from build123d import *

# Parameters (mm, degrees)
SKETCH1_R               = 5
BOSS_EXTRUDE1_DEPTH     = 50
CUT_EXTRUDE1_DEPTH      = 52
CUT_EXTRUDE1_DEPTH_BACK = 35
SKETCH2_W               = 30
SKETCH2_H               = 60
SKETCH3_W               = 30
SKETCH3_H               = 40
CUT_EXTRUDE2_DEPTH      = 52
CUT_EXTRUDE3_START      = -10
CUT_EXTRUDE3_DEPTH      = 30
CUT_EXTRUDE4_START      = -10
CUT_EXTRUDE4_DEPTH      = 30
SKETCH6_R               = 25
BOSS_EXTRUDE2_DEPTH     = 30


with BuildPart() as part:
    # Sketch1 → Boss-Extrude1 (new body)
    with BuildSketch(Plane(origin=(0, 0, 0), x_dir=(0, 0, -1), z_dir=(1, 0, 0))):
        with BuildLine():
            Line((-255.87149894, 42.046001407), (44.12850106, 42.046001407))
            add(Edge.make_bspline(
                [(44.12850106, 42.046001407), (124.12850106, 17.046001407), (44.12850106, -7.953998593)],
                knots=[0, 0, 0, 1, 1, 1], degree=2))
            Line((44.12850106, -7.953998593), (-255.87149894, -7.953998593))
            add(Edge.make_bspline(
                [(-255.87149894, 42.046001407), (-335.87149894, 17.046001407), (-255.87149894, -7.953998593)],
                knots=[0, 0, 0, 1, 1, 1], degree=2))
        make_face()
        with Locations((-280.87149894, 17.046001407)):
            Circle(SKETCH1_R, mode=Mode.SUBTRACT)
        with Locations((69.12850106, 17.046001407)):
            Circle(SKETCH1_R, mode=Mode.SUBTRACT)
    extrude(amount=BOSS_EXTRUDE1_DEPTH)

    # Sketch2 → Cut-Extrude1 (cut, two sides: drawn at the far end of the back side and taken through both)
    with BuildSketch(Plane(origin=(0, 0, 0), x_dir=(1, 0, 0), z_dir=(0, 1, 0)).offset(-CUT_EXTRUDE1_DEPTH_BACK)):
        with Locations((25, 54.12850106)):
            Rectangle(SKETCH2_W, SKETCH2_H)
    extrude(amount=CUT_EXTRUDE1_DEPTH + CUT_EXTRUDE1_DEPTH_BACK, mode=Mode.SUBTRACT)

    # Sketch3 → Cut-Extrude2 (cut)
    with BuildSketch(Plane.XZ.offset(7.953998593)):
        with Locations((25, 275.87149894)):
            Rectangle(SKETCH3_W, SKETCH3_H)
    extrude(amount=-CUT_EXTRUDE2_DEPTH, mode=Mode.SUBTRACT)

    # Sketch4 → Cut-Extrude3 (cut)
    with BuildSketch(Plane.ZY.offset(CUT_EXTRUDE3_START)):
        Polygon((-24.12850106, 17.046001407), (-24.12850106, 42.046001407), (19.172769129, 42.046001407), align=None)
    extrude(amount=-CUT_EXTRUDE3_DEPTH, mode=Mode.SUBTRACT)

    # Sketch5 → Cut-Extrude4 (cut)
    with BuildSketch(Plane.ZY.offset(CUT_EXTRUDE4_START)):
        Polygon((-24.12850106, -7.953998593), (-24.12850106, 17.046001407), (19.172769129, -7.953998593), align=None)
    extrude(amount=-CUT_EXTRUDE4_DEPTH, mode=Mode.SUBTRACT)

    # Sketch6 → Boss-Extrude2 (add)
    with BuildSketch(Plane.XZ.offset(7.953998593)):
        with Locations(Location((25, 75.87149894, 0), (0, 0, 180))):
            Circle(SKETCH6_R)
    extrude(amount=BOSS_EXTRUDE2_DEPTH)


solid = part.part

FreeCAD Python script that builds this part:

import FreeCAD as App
import Part
import Sketcher
Q = App.Units.Quantity


def add_polygon(sketch, points):
    """Adds a closed chain of lines whose ends are joined by coincident constraints."""
    first, n = sketch.GeometryCount, len(points)
    for a, b in zip(points, points[1:] + points[:1]):
        sketch.addGeometry(Part.LineSegment(App.Vector(*a, 0), App.Vector(*b, 0)), False)
    for i in range(n):
        sketch.addConstraint(Sketcher.Constraint("Coincident", first + i, 2, first + (i + 1) % n, 1))

doc = App.newDocument("Part")
body = doc.addObject("PartDesign::Body", "Body")

# Sketch on YZ plane
sketch1 = body.newObject("Sketcher::SketchObject", "Sketch")
sketch1.AttachmentSupport = (doc.getObject("YZ_Plane"), [""])
sketch1.MapMode = "FlatFace"
sketch1.addGeometry([
    Part.LineSegment(App.Vector(42.046001, -44.128501, 0), App.Vector(42.046001, 255.871499, 0)),  # 0
    Part.BSplineCurve([App.Vector(42.046001, 255.871499, 0), App.Vector(17.046001, 335.871499, 0), App.Vector(-7.953999, 255.871499, 0)], [3, 3], [0, 1], False, 2, [1, 1, 1], False),  # 1
    Part.LineSegment(App.Vector(-7.953999, 255.871499, 0), App.Vector(-7.953999, -44.128501, 0)),  # 2
    Part.BSplineCurve([App.Vector(42.046001, -44.128501, 0), App.Vector(17.046001, -124.128501, 0), App.Vector(-7.953999, -44.128501, 0)], [3, 3], [0, 1], False, 2, [1, 1, 1], False),  # 3
    Part.Circle(App.Vector(17.046001, -69.128501, 0), App.Vector(0, 0, 1), 5),  # 4
    Part.Circle(App.Vector(17.046001, 280.871499, 0), App.Vector(0, 0, 1), 5),  # 5
], False)
sketch1.addConstraint([
    Sketcher.Constraint("Block", 1),
    Sketcher.Constraint("Block", 3),
    Sketcher.Constraint("Coincident", 0, 2, 1, 1),
    Sketcher.Constraint("Coincident", 1, 2, 2, 1),
    Sketcher.Constraint("Coincident", 2, 2, 3, 2),
    Sketcher.Constraint("Coincident", 3, 1, 0, 1),
    Sketcher.Constraint("Equal", 4, 5),
    Sketcher.Constraint("Vertical", 4, 3, 5, 3),
    Sketcher.Constraint("Diameter", 4, Q("10 mm")),
    Sketcher.Constraint("DistanceY", 4, 3, 5, 3, Q("350 mm")),
    Sketcher.Constraint("DistanceX", 5, 3, 0, 2, Q("25 mm")),
    Sketcher.Constraint("DistanceY", 0, 2, 5, 3, Q("25 mm")),
])
pad1 = body.newObject("PartDesign::Pad", "Pad")
pad1.Profile = sketch1
pad1.Length = 50

# Sketch on XZ plane
sketch2 = body.newObject("Sketcher::SketchObject", "Sketch001")
sketch2.AttachmentSupport = (doc.getObject("XZ_Plane"), [""])
sketch2.MapMode = "FlatFace"
add_polygon(sketch2, [(10, -84), (10, -24), (40, -24), (40, -84)])  # lines 0-3
sketch2.addConstraint([
    Sketcher.Constraint("Vertical", 0),
    Sketcher.Constraint("Horizontal", 1),
    Sketcher.Constraint("Vertical", 2),
    Sketcher.Constraint("Horizontal", 3),
    Sketcher.Constraint("DistanceX", 1, 1, 1, 2, Q("30 mm")),
    Sketcher.Constraint("DistanceY", 0, 1, 0, 2, Q("60 mm")),
    Sketcher.Constraint("DistanceX", -1, 1, 0, 2, Q("10 mm")),
    Sketcher.Constraint("DistanceY", 0, 2, -1, 1, Q("24.128501 mm")),
])
pocket1 = body.newObject("PartDesign::Pocket", "Pocket")
pocket1.Profile = sketch2
pocket1.Type = "ThroughAll"
pocket1.Midplane = True

# Sketch on XZ plane
sketch3 = body.newObject("Sketcher::SketchObject", "Sketch002")
sketch3.AttachmentSupport = (doc.getObject("XZ_Plane"), [""])
sketch3.MapMode = "FlatFace"
sketch3.AttachmentOffset = App.Placement(App.Vector(0, 0, 7.953999), App.Rotation())
add_polygon(sketch3, [(10, 296), (10, 256), (40, 256), (40, 296)])  # lines 0-3
sketch3.addConstraint([
    Sketcher.Constraint("Vertical", 0),
    Sketcher.Constraint("Horizontal", 1),
    Sketcher.Constraint("Vertical", 2),
    Sketcher.Constraint("Horizontal", 3),
    Sketcher.Constraint("DistanceX", 1, 1, 1, 2, Q("30 mm")),
    Sketcher.Constraint("DistanceY", 0, 2, 0, 1, Q("40 mm")),
    Sketcher.Constraint("DistanceX", -1, 1, 0, 2, Q("10 mm")),
    Sketcher.Constraint("DistanceY", -1, 1, 0, 2, Q("255.871499 mm")),
])
pocket2 = body.newObject("PartDesign::Pocket", "Pocket001")
pocket2.Profile = sketch3
pocket2.Length = 52

# Sketch on YZ plane
sketch4 = body.newObject("Sketcher::SketchObject", "Sketch003")
sketch4.AttachmentSupport = (doc.getObject("YZ_Plane"), [""])
sketch4.MapMode = "FlatFace"
sketch4.AttachmentOffset = App.Placement(App.Vector(0, 0, 10), App.Rotation())
add_polygon(sketch4, [(42, -24), (17, -24), (42, 19)])  # lines 0-2
sketch4.addConstraint([
    Sketcher.Constraint("Horizontal", 0),
    Sketcher.Constraint("Vertical", 2),
    Sketcher.Constraint("DistanceX", 0, 2, 0, 1, Q("25 mm")),
    Sketcher.Constraint("Angle", 1, Q("60 deg")),
    Sketcher.Constraint("DistanceX", -1, 1, 0, 2, Q("17.046001 mm")),
    Sketcher.Constraint("DistanceY", 0, 2, -1, 1, Q("24.128501 mm")),
])
pocket3 = body.newObject("PartDesign::Pocket", "Pocket002")
pocket3.Profile = sketch4
pocket3.Length = 30
pocket3.Reversed = True

# Sketch on YZ plane
sketch5 = body.newObject("Sketcher::SketchObject", "Sketch004")
sketch5.AttachmentSupport = (doc.getObject("YZ_Plane"), [""])
sketch5.MapMode = "FlatFace"
sketch5.AttachmentOffset = App.Placement(App.Vector(0, 0, 10), App.Rotation())
add_polygon(sketch5, [(17, -24), (-8, -24), (-8, 19)])  # lines 0-2
sketch5.addConstraint([
    Sketcher.Constraint("Horizontal", 0),
    Sketcher.Constraint("Vertical", 1),
    Sketcher.Constraint("DistanceX", 0, 2, 0, 1, Q("25 mm")),
    Sketcher.Constraint("Angle", 2, Q("-60 deg")),
    Sketcher.Constraint("DistanceX", 0, 2, -1, 1, Q("7.953999 mm")),
    Sketcher.Constraint("DistanceY", 0, 2, -1, 1, Q("24.128501 mm")),
])
pocket4 = body.newObject("PartDesign::Pocket", "Pocket003")
pocket4.Profile = sketch5
pocket4.Length = 30
pocket4.Reversed = True

# Sketch on XZ plane
sketch6 = body.newObject("Sketcher::SketchObject", "Sketch005")
sketch6.AttachmentSupport = (doc.getObject("XZ_Plane"), [""])
sketch6.MapMode = "FlatFace"
sketch6.AttachmentOffset = App.Placement(App.Vector(0, 0, 7.953999), App.Rotation())
sketch6.addGeometry(Part.Circle(App.Vector(25, 76, 0), App.Vector(0, 0, 1), 25), False)
sketch6.addConstraint([
    Sketcher.Constraint("Diameter", 0, Q("50 mm")),
    Sketcher.Constraint("DistanceX", -1, 1, 0, 3, Q("25 mm")),
    Sketcher.Constraint("DistanceY", -1, 1, 0, 3, Q("75.871499 mm")),
])
pad2 = body.newObject("PartDesign::Pad", "Pad001")
pad2.Profile = sketch6
pad2.Length = 30

doc.recompute()
